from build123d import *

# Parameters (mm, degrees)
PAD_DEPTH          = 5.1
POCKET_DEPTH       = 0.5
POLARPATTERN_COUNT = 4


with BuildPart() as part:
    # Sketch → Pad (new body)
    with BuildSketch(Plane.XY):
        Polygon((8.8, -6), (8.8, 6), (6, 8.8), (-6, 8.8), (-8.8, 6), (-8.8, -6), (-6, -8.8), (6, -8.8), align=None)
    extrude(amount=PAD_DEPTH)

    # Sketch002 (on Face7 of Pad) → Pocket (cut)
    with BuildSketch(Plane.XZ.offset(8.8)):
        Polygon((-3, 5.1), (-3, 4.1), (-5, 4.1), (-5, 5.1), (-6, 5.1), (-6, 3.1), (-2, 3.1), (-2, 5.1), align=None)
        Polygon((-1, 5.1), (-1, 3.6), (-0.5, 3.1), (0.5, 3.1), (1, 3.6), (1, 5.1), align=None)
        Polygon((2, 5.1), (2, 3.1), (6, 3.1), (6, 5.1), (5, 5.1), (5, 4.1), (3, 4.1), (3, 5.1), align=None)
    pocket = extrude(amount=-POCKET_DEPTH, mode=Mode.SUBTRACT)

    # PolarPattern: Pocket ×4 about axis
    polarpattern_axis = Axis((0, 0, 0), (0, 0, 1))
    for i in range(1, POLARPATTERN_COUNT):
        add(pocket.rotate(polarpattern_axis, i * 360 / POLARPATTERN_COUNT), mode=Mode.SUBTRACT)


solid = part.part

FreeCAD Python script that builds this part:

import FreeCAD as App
import Part
import Sketcher
Q = App.Units.Quantity

doc = App.newDocument("Part")
body = doc.addObject("PartDesign::Body", "Body")

# Sketch on XY plane
sketch1 = body.newObject("Sketcher::SketchObject", "Sketch")
sketch1.AttachmentSupport = (doc.getObject("XY_Plane"), [""])
sketch1.MapMode = "FlatFace"
sketch1.addGeometry(Part.LineSegment(App.Vector(8.8, -6, 0), App.Vector(8.8, 6, 0)), False)
sketch1.addGeometry(Part.LineSegment(App.Vector(8.8, 6, 0), App.Vector(6, 8.8, 0)), False)
sketch1.addGeometry(Part.LineSegment(App.Vector(6, 8.8, 0), App.Vector(-6, 8.8, 0)), False)
sketch1.addGeometry(Part.LineSegment(App.Vector(-6, 8.8, 0), App.Vector(-8.8, 6, 0)), False)
sketch1.addGeometry(Part.LineSegment(App.Vector(-8.8, 6, 0), App.Vector(-8.8, -6, 0)), False)
sketch1.addGeometry(Part.LineSegment(App.Vector(-8.8, -6, 0), App.Vector(-6, -8.8, 0)), False)
sketch1.addGeometry(Part.LineSegment(App.Vector(-6, -8.8, 0), App.Vector(6, -8.8, 0)), False)
sketch1.addGeometry(Part.LineSegment(App.Vector(6, -8.8, 0), App.Vector(8.8, -6, 0)), False)
sketch1.addConstraint(Sketcher.Constraint("Coincident", 0, 2, 1, 1))
sketch1.addConstraint(Sketcher.Constraint("Coincident", 1, 2, 2, 1))
sketch1.addConstraint(Sketcher.Constraint("Coincident", 2, 2, 3, 1))
sketch1.addConstraint(Sketcher.Constraint("Coincident", 3, 2, 4, 1))
sketch1.addConstraint(Sketcher.Constraint("Coincident", 4, 2, 5, 1))
sketch1.addConstraint(Sketcher.Constraint("Coincident", 5, 2, 6, 1))
sketch1.addConstraint(Sketcher.Constraint("Coincident", 6, 2, 7, 1))
sketch1.addConstraint(Sketcher.Constraint("Coincident", 7, 2, 0, 1))
sketch1.addConstraint(Sketcher.Constraint("Vertical", 0))
sketch1.addConstraint(Sketcher.Constraint("Horizontal", 2))
sketch1.addConstraint(Sketcher.Constraint("Vertical", 4))
sketch1.addConstraint(Sketcher.Constraint("Horizontal", 6))
sketch1.addConstraint(Sketcher.Constraint("Symmetric", 0, 2, 4, 2, -1, 1))
sketch1.addConstraint(Sketcher.Constraint("Symmetric", 1, 2, 5, 2, -1, 1))
sketch1.addConstraint(Sketcher.Constraint("Perpendicular", 1, 3))
sketch1.addConstraint(Sketcher.Constraint("Perpendicular", 5, 7))
sketch1.addConstraint(Sketcher.Constraint("Horizontal", 0, 2, 3, 2))
sketch1.addConstraint(Sketcher.Constraint("Horizontal", 4, 2, 7, 2))
sketch1.addConstraint(Sketcher.Constraint("Vertical", 2, 2, 5, 2))
sketch1.addConstraint(Sketcher.Constraint("Equal", 6, 0))
sketch1.addConstraint(Sketcher.Constraint("DistanceX", 2, 2, 2, 1, Q("12 mm")))
sketch1.addConstraint(Sketcher.Constraint("DistanceX", -1, 1, 0, 2, Q("8.8 mm")))
pad1 = body.newObject("PartDesign::Pad", "Pad")
pad1.Profile = sketch1
pad1.Length = 5.1

# Sketch on XZ plane
sketch2 = body.newObject("Sketcher::SketchObject", "Sketch001")
sketch2.AttachmentSupport = (doc.getObject("XZ_Plane"), [""])
sketch2.MapMode = "FlatFace"
sketch2.AttachmentOffset = App.Placement(App.Vector(0, 0, 8.8), App.Rotation())
sketch2.addGeometry(Part.LineSegment(App.Vector(-3, 5.1, 0), App.Vector(-3, 4.1, 0)), False)
sketch2.addGeometry(Part.LineSegment(App.Vector(-3, 4.1, 0), App.Vector(-5, 4.1, 0)), False)
sketch2.addGeometry(Part.LineSegment(App.Vector(-5, 4.1, 0), App.Vector(-5, 5.1, 0)), False)
sketch2.addGeometry(Part.LineSegment(App.Vector(-5, 5.1, 0), App.Vector(-6, 5.1, 0)), False)
sketch2.addGeometry(Part.LineSegment(App.Vector(-6, 5.1, 0), App.Vector(-6, 3.1, 0)), False)
sketch2.addGeometry(Part.LineSegment(App.Vector(-6, 3.1, 0), App.Vector(-2, 3.1, 0)), False)
sketch2.addGeometry(Part.LineSegment(App.Vector(-2, 3.1, 0), App.Vector(-2, 5.1, 0)), False)
sketch2.addGeometry(Part.LineSegment(App.Vector(-2, 5.1, 0), App.Vector(-3, 5.1, 0)), False)
sketch2.addGeometry(Part.LineSegment(App.Vector(-1, 5.1, 0), App.Vector(-1, 3.6, 0)), False)
sketch2.addGeometry(Part.LineSegment(App.Vector(-1, 3.6, 0), App.Vector(-0.5, 3.1, 0)), False)
sketch2.addGeometry(Part.LineSegment(App.Vector(-0.5, 3.1, 0), App.Vector(0.5, 3.1, 0)), False)
sketch2.addGeometry(Part.LineSegment(App.Vector(0.5, 3.1, 0), App.Vector(1, 3.6, 0)), False)
sketch2.addGeometry(Part.LineSegment(App.Vector(1, 3.6, 0), App.Vector(1, 5.1, 0)), False)
sketch2.addGeometry(Part.LineSegment(App.Vector(1, 5.1, 0), App.Vector(-1, 5.1, 0)), False)
sketch2.addGeometry(Part.LineSegment(App.Vector(2, 5.1, 0), App.Vector(2, 3.1, 0)), False)
sketch2.addGeometry(Part.LineSegment(App.Vector(2, 3.1, 0), App.Vector(6, 3.1, 0)), False)
sketch2.addGeometry(Part.LineSegment(App.Vector(6, 3.1, 0), App.Vector(6, 5.1, 0)), False)
sketch2.addGeometry(Part.LineSegment(App.Vector(6, 5.1, 0), App.Vector(5, 5.1, 0)), False)
sketch2.addGeometry(Part.LineSegment(App.Vector(5, 5.1, 0), App.Vector(5, 4.1, 0)), False)
sketch2.addGeometry(Part.LineSegment(App.Vector(5, 4.1, 0), App.Vector(3, 4.1, 0)), False)
sketch2.addGeometry(Part.LineSegment(App.Vector(3, 4.1, 0), App.Vector(3, 5.1, 0)), False)
sketch2.addGeometry(Part.LineSegment(App.Vector(3, 5.1, 0), App.Vector(2, 5.1, 0)), False)
sketch2.addConstraint(Sketcher.Constraint("Coincident", 0, 2, 1, 1))
sketch2.addConstraint(Sketcher.Constraint("Coincident", 1, 2, 2, 1))
sketch2.addConstraint(Sketcher.Constraint("Coincident", 2, 2, 3, 1))
sketch2.addConstraint(Sketcher.Constraint("Coincident", 3, 2, 4, 1))
sketch2.addConstraint(Sketcher.Constraint("Coincident", 4, 2, 5, 1))
sketch2.addConstraint(Sketcher.Constraint("Coincident", 5, 2, 6, 1))
sketch2.addConstraint(Sketcher.Constraint("Coincident", 6, 2, 7, 1))
sketch2.addConstraint(Sketcher.Constraint("Coincident", 7, 2, 0, 1))
sketch2.addConstraint(Sketcher.Constraint("Coincident", 8, 2, 9, 1))
sketch2.addConstraint(Sketcher.Constraint("Coincident", 9, 2, 10, 1))
sketch2.addConstraint(Sketcher.Constraint("Coincident", 10, 2, 11, 1))
sketch2.addConstraint(Sketcher.Constraint("Coincident", 11, 2, 12, 1))
sketch2.addConstraint(Sketcher.Constraint("Coincident", 12, 2, 13, 1))
sketch2.addConstraint(Sketcher.Constraint("Coincident", 13, 2, 8, 1))
sketch2.addConstraint(Sketcher.Constraint("Coincident", 14, 2, 15, 1))
sketch2.addConstraint(Sketcher.Constraint("Coincident", 15, 2, 16, 1))
sketch2.addConstraint(Sketcher.Constraint("Coincident", 16, 2, 17, 1))
sketch2.addConstraint(Sketcher.Constraint("Coincident", 17, 2, 18, 1))
sketch2.addConstraint(Sketcher.Constraint("Coincident", 18, 2, 19, 1))
sketch2.addConstraint(Sketcher.Constraint("Coincident", 19, 2, 20, 1))
sketch2.addConstraint(Sketcher.Constraint("Coincident", 20, 2, 21, 1))
sketch2.addConstraint(Sketcher.Constraint("Coincident", 21, 2, 14, 1))
sketch2.addConstraint(Sketcher.Constraint("Vertical", 0))
sketch2.addConstraint(Sketcher.Constraint("Horizontal", 1))
sketch2.addConstraint(Sketcher.Constraint("Vertical", 2))
sketch2.addConstraint(Sketcher.Constraint("Horizontal", 3))
sketch2.addConstraint(Sketcher.Constraint("Vertical", 4))
sketch2.addConstraint(Sketcher.Constraint("Horizontal", 5))
sketch2.addConstraint(Sketcher.Constraint("Vertical", 6))
sketch2.addConstraint(Sketcher.Constraint("Horizontal", 7))
sketch2.addConstraint(Sketcher.Constraint("Vertical", 8))
sketch2.addConstraint(Sketcher.Constraint("Horizontal", 10))
sketch2.addConstraint(Sketcher.Constraint("Vertical", 12))
sketch2.addConstraint(Sketcher.Constraint("Horizontal", 13))
sketch2.addConstraint(Sketcher.Constraint("Vertical", 14))
sketch2.addConstraint(Sketcher.Constraint("Horizontal", 15))
sketch2.addConstraint(Sketcher.Constraint("Vertical", 16))
sketch2.addConstraint(Sketcher.Constraint("Horizontal", 17))
sketch2.addConstraint(Sketcher.Constraint("Vertical", 18))
sketch2.addConstraint(Sketcher.Constraint("Horizontal", 19))
sketch2.addConstraint(Sketcher.Constraint("Vertical", 20))
sketch2.addConstraint(Sketcher.Constraint("Horizontal", 21))
sketch2.addConstraint(Sketcher.Constraint("Symmetric", 8, 2, 11, 2, -2))
sketch2.addConstraint(Sketcher.Constraint("Symmetric", 5, 2, 14, 2, -2))
sketch2.addConstraint(Sketcher.Constraint("Symmetric", 3, 2, 16, 2, -2))
sketch2.addConstraint(Sketcher.Constraint("Symmetric", 1, 2, 18, 2, -2))
sketch2.addConstraint(Sketcher.Constraint("Symmetric", 7, 2, 20, 2, -2))
sketch2.addConstraint(Sketcher.Constraint("Perpendicular", 9, 11))
sketch2.addConstraint(Sketcher.Constraint("Horizontal", 3, 2, 6, 2))
sketch2.addConstraint(Sketcher.Constraint("Horizontal", 5, 2, 9, 2))
sketch2.addConstraint(Sketcher.Constraint("Horizontal", 7, 2, 12, 2))
sketch2.addConstraint(Sketcher.Constraint("Equal", 3, 7))
sketch2.addConstraint(Sketcher.Constraint("Equal", 7, 10))
sketch2.addConstraint(Sketcher.Constraint("Equal", 1, 13))
sketch2.addConstraint(Sketcher.Constraint("Equal", 21, 0))
sketch2.addConstraint(Sketcher.Constraint("Equal", 19, 4))
sketch2.addConstraint(Sketcher.Constraint("Equal", 9, 11))
sketch2.addConstraint(Sketcher.Constraint("DistanceX", 1, 2, 1, 1, Q("2 mm")))
sketch2.addConstraint(Sketcher.Constraint("DistanceX", 3, 2, 3, 1, Q("1 mm")))
sketch2.addConstraint(Sketcher.Constraint("DistanceX", 0, 2, -1, 1, Q("3 mm")))
sketch2.addConstraint(Sketcher.Constraint("DistanceY", -1, 1, 0, 2, Q("4.1 mm")))
pocket1 = body.newObject("PartDesign::Pocket", "Pocket")
pocket1.Profile = sketch2
pocket1.Length = 0.5
doc.recompute()

polarpattern = body.newObject("PartDesign::PolarPattern", "PolarPattern")
polarpattern.Originals = [pocket1]
polarpattern.Axis = (doc.getObject("Z_Axis"), [""])
polarpattern.Angle = 360
polarpattern.Occurrences = 4
body.Tip = polarpattern

doc.recompute()
